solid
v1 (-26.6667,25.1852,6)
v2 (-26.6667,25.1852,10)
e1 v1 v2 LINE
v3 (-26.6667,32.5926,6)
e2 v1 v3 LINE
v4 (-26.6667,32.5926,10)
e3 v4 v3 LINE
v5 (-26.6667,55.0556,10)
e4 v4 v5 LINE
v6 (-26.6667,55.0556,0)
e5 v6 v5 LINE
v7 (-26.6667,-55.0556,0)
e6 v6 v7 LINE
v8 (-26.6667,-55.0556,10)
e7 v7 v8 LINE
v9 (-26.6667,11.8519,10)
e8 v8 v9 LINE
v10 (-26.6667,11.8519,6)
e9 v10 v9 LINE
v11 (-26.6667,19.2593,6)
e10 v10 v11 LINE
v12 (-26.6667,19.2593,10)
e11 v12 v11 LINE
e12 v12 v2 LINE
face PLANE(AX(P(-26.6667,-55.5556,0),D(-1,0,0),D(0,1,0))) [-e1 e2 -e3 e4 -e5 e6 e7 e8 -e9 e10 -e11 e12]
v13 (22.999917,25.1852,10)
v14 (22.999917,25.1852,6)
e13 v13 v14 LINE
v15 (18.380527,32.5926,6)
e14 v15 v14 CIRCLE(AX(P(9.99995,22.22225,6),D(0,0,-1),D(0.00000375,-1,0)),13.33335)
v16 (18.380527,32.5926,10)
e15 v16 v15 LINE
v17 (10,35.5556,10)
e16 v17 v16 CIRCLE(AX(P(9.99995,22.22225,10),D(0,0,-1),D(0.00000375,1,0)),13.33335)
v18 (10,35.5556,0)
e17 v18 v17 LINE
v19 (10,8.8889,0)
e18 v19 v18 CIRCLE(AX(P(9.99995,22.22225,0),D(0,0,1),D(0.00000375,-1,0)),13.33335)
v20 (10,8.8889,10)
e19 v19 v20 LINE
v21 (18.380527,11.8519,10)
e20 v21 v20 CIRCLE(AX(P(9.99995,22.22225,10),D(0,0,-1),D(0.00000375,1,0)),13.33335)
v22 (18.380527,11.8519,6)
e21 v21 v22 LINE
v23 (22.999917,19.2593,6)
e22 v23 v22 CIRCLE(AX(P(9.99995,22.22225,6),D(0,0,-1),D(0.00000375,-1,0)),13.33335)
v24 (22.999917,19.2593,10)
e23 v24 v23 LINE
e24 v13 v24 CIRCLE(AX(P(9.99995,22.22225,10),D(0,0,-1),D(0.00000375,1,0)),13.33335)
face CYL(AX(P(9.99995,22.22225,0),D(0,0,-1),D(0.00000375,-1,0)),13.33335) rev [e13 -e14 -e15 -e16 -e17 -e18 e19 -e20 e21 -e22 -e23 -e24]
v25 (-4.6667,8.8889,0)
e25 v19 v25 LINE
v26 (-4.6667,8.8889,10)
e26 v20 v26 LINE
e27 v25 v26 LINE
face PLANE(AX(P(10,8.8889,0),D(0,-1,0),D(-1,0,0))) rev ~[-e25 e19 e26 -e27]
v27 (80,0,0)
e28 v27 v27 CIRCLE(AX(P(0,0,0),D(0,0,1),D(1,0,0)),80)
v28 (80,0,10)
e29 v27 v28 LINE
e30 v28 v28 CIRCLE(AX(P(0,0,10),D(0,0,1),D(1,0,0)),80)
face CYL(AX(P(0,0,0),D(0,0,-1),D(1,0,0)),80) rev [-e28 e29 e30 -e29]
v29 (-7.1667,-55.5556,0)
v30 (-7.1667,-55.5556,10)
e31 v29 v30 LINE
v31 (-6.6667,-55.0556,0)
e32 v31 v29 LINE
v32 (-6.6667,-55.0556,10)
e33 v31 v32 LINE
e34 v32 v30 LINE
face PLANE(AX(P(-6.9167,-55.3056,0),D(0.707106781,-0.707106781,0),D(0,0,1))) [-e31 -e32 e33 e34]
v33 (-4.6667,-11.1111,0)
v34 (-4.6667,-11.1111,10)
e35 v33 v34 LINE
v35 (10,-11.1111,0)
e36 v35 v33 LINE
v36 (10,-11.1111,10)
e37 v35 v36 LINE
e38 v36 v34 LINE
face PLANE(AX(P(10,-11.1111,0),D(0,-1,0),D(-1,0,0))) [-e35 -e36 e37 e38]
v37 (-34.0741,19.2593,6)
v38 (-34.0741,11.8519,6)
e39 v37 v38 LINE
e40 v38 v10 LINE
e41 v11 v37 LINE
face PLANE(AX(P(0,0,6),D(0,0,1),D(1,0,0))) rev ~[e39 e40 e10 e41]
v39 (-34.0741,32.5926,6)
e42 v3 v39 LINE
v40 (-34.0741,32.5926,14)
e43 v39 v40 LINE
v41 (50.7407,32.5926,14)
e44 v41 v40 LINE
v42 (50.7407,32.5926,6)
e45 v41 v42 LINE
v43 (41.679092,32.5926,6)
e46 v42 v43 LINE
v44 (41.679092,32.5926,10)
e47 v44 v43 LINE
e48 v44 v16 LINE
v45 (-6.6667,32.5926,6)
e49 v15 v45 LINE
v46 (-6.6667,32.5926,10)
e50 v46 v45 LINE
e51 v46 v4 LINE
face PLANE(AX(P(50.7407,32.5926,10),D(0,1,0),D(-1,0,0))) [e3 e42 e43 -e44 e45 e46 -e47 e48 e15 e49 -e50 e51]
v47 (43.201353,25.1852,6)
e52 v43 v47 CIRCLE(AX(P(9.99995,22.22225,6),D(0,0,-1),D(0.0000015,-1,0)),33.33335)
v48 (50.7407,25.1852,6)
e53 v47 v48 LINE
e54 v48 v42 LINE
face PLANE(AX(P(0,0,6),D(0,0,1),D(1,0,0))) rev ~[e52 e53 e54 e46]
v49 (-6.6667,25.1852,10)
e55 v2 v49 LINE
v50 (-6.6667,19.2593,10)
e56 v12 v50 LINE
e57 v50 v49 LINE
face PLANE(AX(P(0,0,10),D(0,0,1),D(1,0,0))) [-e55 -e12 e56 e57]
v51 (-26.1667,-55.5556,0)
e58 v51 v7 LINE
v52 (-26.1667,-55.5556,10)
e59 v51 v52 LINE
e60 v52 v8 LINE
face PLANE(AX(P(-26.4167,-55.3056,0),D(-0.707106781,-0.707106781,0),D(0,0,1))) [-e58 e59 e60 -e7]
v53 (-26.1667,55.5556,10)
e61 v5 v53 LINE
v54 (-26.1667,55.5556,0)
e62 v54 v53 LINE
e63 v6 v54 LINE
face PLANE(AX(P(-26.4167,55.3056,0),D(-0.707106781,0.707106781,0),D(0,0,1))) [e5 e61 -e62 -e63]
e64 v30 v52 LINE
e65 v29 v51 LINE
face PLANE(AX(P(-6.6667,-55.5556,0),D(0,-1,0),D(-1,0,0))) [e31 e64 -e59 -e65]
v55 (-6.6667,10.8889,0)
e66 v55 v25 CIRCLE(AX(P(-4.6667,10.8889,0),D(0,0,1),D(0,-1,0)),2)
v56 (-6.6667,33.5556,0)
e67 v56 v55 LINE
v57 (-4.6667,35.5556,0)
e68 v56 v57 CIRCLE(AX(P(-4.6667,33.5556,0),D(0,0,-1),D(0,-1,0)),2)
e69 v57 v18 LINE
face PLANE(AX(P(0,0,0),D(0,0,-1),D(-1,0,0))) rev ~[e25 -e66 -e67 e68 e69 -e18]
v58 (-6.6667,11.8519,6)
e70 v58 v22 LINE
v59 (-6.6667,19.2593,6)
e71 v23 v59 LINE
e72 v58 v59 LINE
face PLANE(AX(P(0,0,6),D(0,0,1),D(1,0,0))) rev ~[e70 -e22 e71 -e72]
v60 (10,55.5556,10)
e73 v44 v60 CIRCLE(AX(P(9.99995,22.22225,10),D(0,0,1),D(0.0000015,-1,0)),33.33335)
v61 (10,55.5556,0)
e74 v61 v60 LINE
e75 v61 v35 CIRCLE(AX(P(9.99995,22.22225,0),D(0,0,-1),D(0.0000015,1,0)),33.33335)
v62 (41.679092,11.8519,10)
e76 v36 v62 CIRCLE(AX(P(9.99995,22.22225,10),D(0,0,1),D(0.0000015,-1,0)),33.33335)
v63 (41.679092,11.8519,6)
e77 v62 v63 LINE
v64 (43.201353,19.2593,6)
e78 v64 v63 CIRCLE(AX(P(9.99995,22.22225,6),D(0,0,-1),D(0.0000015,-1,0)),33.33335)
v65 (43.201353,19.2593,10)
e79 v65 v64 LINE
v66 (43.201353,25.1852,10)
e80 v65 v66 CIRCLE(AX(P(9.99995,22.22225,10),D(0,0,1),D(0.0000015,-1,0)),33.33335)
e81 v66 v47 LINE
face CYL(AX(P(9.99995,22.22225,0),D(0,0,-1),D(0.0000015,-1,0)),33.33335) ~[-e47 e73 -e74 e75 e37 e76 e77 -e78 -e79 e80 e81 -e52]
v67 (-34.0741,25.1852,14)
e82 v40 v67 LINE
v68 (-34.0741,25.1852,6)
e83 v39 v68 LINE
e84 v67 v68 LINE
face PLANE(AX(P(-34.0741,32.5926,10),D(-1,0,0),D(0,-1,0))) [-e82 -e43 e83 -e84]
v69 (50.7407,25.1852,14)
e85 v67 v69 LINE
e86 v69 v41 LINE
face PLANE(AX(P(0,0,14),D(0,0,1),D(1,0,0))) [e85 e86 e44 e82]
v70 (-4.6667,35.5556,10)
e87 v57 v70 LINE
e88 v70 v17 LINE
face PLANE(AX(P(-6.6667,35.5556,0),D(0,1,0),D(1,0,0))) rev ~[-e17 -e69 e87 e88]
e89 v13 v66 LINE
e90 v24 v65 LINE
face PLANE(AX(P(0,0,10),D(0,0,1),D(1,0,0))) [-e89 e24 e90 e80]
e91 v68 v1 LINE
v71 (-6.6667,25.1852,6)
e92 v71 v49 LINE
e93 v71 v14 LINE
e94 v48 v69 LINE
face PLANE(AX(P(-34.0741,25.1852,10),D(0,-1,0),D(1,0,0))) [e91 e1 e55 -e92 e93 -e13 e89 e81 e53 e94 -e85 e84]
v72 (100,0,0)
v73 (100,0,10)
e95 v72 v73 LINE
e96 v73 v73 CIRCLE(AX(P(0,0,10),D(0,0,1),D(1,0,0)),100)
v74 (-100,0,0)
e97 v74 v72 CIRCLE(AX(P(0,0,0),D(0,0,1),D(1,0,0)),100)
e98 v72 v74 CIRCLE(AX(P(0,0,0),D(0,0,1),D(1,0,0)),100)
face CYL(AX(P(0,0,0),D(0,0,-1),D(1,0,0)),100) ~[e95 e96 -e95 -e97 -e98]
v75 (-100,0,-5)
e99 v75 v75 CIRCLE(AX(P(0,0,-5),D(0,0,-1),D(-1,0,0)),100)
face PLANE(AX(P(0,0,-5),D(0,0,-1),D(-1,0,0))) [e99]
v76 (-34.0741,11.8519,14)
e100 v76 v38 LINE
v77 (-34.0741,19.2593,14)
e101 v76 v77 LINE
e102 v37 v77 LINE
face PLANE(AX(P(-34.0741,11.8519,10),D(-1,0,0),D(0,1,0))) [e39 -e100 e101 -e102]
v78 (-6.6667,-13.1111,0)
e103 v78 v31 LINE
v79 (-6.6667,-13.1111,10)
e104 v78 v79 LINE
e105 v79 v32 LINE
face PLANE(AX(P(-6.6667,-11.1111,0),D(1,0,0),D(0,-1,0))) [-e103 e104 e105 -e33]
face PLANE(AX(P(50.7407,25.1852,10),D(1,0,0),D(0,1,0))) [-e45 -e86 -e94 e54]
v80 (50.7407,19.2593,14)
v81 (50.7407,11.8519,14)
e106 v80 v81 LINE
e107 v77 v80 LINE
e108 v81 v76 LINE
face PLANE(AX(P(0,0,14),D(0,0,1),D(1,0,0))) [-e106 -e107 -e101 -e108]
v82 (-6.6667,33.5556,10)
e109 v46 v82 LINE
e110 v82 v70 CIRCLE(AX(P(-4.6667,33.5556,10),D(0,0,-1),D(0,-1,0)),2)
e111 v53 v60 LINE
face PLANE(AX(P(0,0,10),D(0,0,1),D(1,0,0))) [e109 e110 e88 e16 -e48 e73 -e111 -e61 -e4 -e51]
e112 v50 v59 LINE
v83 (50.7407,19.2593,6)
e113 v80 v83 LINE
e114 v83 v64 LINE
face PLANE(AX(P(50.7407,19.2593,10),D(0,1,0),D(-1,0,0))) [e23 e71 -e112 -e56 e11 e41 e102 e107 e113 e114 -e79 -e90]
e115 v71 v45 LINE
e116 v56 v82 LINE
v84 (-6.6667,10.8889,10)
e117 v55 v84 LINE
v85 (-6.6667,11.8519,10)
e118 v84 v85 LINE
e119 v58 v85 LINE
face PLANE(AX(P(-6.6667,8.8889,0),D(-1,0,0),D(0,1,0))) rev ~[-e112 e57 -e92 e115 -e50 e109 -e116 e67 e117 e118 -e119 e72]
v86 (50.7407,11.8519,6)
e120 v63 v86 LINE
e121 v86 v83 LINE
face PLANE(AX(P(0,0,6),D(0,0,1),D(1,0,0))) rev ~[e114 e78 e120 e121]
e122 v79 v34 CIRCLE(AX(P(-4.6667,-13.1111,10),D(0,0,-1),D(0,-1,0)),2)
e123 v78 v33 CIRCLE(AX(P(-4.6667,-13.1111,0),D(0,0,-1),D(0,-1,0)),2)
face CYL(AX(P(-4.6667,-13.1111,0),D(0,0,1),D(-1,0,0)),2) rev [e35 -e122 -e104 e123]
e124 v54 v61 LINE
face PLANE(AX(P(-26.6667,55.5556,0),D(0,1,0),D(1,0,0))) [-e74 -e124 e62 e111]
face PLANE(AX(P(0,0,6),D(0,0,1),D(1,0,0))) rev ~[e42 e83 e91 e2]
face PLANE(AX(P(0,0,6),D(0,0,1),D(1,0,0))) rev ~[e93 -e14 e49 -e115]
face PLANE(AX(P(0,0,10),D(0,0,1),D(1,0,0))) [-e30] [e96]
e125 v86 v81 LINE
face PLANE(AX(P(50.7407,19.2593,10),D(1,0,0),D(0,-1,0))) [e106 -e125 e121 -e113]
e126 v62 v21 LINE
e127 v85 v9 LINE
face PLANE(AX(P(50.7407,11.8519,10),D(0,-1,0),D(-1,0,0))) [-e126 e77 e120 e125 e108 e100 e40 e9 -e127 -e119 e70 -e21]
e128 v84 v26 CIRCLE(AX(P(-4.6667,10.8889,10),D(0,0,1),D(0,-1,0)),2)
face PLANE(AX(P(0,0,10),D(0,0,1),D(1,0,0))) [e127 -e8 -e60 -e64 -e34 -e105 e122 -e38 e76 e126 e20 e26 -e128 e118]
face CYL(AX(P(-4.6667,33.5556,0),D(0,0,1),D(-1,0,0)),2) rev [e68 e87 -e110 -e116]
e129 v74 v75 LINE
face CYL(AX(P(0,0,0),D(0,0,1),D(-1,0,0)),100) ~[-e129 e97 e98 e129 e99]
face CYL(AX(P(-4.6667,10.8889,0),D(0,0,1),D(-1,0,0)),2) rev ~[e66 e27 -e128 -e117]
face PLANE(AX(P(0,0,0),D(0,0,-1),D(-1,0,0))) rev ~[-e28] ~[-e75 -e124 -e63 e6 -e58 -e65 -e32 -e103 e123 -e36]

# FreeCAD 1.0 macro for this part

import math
import FreeCAD as App
import Part
import Sketcher
Q = App.Units.Quantity


def edges_at(feature, points):
    """Names of the edges that pass closest to the given points."""
    edges = feature.Shape.Edges
    near = lambda p: min(range(len(edges)), key=lambda i: edges[i].distToShape(Part.Vertex(*p))[0])
    return sorted({f"Edge{near(p) + 1}" for p in points})


def add_polygon(sketch, points):
    """Adds a closed chain of lines whose ends are joined by coincident constraints."""
    first, n = sketch.GeometryCount, len(points)
    for a, b in zip(points, points[1:] + points[:1]):
        sketch.addGeometry(Part.LineSegment(App.Vector(*a, 0), App.Vector(*b, 0)), False)
    for i in range(n):
        sketch.addConstraint(Sketcher.Constraint("Coincident", first + i, 2, first + (i + 1) % n, 1))

doc = App.newDocument("Part")
body = doc.addObject("PartDesign::Body", "Body")
body.AllowCompound = True

# Sketch on XY plane
sketch1 = body.newObject("Sketcher::SketchObject", "Sketch")
sketch1.AttachmentSupport = (doc.getObject("XY_Plane"), [""])
sketch1.MapMode = "FlatFace"
sketch1.addGeometry([
    Part.Circle(App.Vector(0, 0, 0), App.Vector(0, 0, 1), 100),  # 0
    Part.Circle(App.Vector(0, 0, 0), App.Vector(0, 0, 1), 80),  # 1
    Part.LineSegment(App.Vector(-26.6667, -55.5556, 0), App.Vector(-6.6667, -55.5556, 0)),  # 2
    Part.LineSegment(App.Vector(-6.6667, -55.5556, 0), App.Vector(-6.6667, -11.1111, 0)),  # 3
    Part.LineSegment(App.Vector(-6.6667, -11.1111, 0), App.Vector(10, -11.1111, 0)),  # 4
    Part.ArcOfCircle(Part.Circle(App.Vector(10, 22.2222, 0), App.Vector(0, 0, 1), 33.3333), math.radians(-90), math.radians(90)),  # 5
    Part.LineSegment(App.Vector(10, 55.5556, 0), App.Vector(-26.6667, 55.5556, 0)),  # 6
    Part.LineSegment(App.Vector(-26.6667, 55.5556, 0), App.Vector(-26.6667, -55.5556, 0)),  # 7
    Part.LineSegment(App.Vector(-6.6667, 8.8889, 0), App.Vector(-6.6667, 35.5556, 0)),  # 8
    Part.LineSegment(App.Vector(-6.6667, 35.5556, 0), App.Vector(10, 35.5556, 0)),  # 9
    Part.ArcOfCircle(Part.Circle(App.Vector(10, 22.2222, 0), App.Vector(0, 0, 1), 13.3333), math.radians(-90), math.radians(90)),  # 10
    Part.LineSegment(App.Vector(10, 8.8889, 0), App.Vector(-6.6667, 8.8889, 0)),  # 11
], False)
sketch1.addConstraint([
    Sketcher.Constraint("Coincident", 2, 2, 3, 1),
    Sketcher.Constraint("Coincident", 3, 2, 4, 1),
    Sketcher.Constraint("Tangent", 4, 2, 5, 1),
    Sketcher.Constraint("Tangent", 5, 2, 6, 1),
    Sketcher.Constraint("Coincident", 6, 2, 7, 1),
    Sketcher.Constraint("Coincident", 7, 2, 2, 1),
    Sketcher.Constraint("Coincident", 8, 2, 9, 1),
    Sketcher.Constraint("Tangent", 9, 2, 10, 2),
    Sketcher.Constraint("Tangent", 10, 1, 11, 1),
    Sketcher.Constraint("Coincident", 11, 2, 8, 1),
    Sketcher.Constraint("Horizontal", 2),
    Sketcher.Constraint("Vertical", 3),
    Sketcher.Constraint("Horizontal", 4),
    Sketcher.Constraint("Horizontal", 6),
    Sketcher.Constraint("Vertical", 7),
    Sketcher.Constraint("Vertical", 8),
    Sketcher.Constraint("Horizontal", 9),
    Sketcher.Constraint("Horizontal", 11),
    Sketcher.Constraint("Coincident", 0, 3, -1, 1),
    Sketcher.Constraint("Coincident", 1, 3, -1, 1),
    Sketcher.Constraint("Coincident", 10, 3, 5, 3),
    Sketcher.Constraint("Vertical", 3, 2, 8, 2),
    Sketcher.Constraint("Diameter", 0, Q("200 mm")),
    Sketcher.Constraint("DistanceX", 2, 1, 2, 2, Q("20 mm")),
    Sketcher.Constraint("Diameter", 1, Q("160 mm")),
    Sketcher.Constraint("DistanceX", -1, 1, 5, 3, Q("10 mm")),
    Sketcher.Constraint("DistanceY", 8, 2, 5, 2, Q("20 mm")),
    Sketcher.Constraint("DistanceY", 3, 1, 3, 2, Q("44.4445 mm")),
    Sketcher.Constraint("DistanceY", 7, 2, 7, 1, Q("111.1112 mm")),
    Sketcher.Constraint("DistanceX", 4, 1, 4, 2, Q("16.6667 mm")),
    Sketcher.Constraint("DistanceY", 3, 2, -1, 1, Q("11.111 mm")),
])
pad1 = body.newObject("PartDesign::Pad", "Pad")
pad1.Profile = sketch1
pad1.Length = 10

# Sketch on XY plane
sketch2 = body.newObject("Sketcher::SketchObject", "Sketch001")
sketch2.AttachmentSupport = (doc.getObject("XY_Plane"), [""])
sketch2.MapMode = "FlatFace"
sketch2.AttachmentOffset = App.Placement(App.Vector(0, 0, 10), App.Rotation())
add_polygon(sketch2, [(-34.0741, 32.5926), (-34.0741, 25.1852), (50.7407, 25.1852), (50.7407, 32.5926)])  # lines 0-3
add_polygon(sketch2, [(50.7407, 11.8519), (50.7407, 19.2593), (-34.0741, 19.2593), (-34.0741, 11.8519)])  # lines 4-7
sketch2.addConstraint([
    Sketcher.Constraint("Vertical", 0),
    Sketcher.Constraint("Horizontal", 1),
    Sketcher.Constraint("Vertical", 2),
    Sketcher.Constraint("Horizontal", 3),
    Sketcher.Constraint("Vertical", 4),
    Sketcher.Constraint("Horizontal", 5),
    Sketcher.Constraint("Vertical", 6),
    Sketcher.Constraint("Horizontal", 7),
    Sketcher.Constraint("Vertical", 2, 2, 4, 2),
    Sketcher.Constraint("Vertical", 3, 2, 5, 2),
    Sketcher.Constraint("Equal", 2, 4),
    Sketcher.Constraint("DistanceX", 1, 1, 1, 2, Q("84.8148 mm")),
    Sketcher.Constraint("DistanceY", 0, 2, 0, 1, Q("7.4074 mm")),
    Sketcher.Constraint("DistanceX", 0, 2, -1, 1, Q("34.074 mm")),
    Sketcher.Constraint("DistanceY", -1, 1, 6, 2, Q("11.852 mm")),
    Sketcher.Constraint("DistanceY", 4, 2, 1, 2, Q("5.926 mm")),
])
pad2 = body.newObject("PartDesign::Pad", "Pad001")
pad2.Profile = sketch2
pad2.Length = 4
pad2.Reversed = True

# Sketch on XY plane
sketch3 = body.newObject("Sketcher::SketchObject", "Sketch002")
sketch3.AttachmentSupport = (doc.getObject("XY_Plane"), [""])
sketch3.MapMode = "FlatFace"
sketch3.addGeometry(Part.Circle(App.Vector(0, 0, 0), App.Vector(0, 0, 1), 100), False)
sketch3.addConstraint([
    Sketcher.Constraint("Coincident", 0, 3, -1, 1),
    Sketcher.Constraint("Diameter", 0, Q("200 mm")),
])
pad3 = body.newObject("PartDesign::Pad", "Pad002")
pad3.Profile = sketch3
pad3.Length = 5
pad3.Reversed = True
doc.recompute()

fillet = body.newObject("PartDesign::Fillet", "Fillet")
fillet.Base = (pad3, edges_at(pad3, [(-6.667, 8.889, 5), (-6.667, 35.556, 5)]))
fillet.Radius = 2
doc.recompute()

fillet2 = body.newObject("PartDesign::Fillet", "Fillet001")
fillet2.Base = (fillet, edges_at(fillet, [(-6.667, -11.111, 5)]))
fillet2.Radius = 2
doc.recompute()

chamfer = body.newObject("PartDesign::Chamfer", "Chamfer")
chamfer.Base = (fillet2, edges_at(fillet2, [(-26.667, 55.556, 5), (-26.667, -55.556, 5), (-6.667, -55.556, 5)]))
chamfer.Size = 0.5

# Sketch on XY plane
sketch4 = body.newObject("Sketcher::SketchObject", "Sketch003")
sketch4.AttachmentSupport = (doc.getObject("XY_Plane"), [""])
sketch4.MapMode = "FlatFace"
sketch4.AttachmentOffset = App.Placement(App.Vector(0, 0, 10), App.Rotation())
add_polygon(sketch4, [(50.7407, 25.1852), (50.7407, 32.5926), (-34.0741, 32.5926), (-34.0741, 25.1852)])  # lines 0-3
add_polygon(sketch4, [(50.7407, 19.2593), (-34.0741, 19.2593), (-34.0741, 11.8519), (50.7407, 11.8519)])  # lines 4-7
sketch4.addConstraint([
    Sketcher.Constraint("Vertical", 0),
    Sketcher.Constraint("Horizontal", 1),
    Sketcher.Constraint("Vertical", 2),
    Sketcher.Constraint("Horizontal", 3),
    Sketcher.Constraint("Horizontal", 4),
    Sketcher.Constraint("Vertical", 5),
    Sketcher.Constraint("Horizontal", 6),
    Sketcher.Constraint("Vertical", 7),
    Sketcher.Constraint("Vertical", 2, 2, 4, 2),
    Sketcher.Constraint("Vertical", 3, 2, 6, 2),
    Sketcher.Constraint("Equal", 2, 5),
    Sketcher.Constraint("DistanceX", 1, 2, 1, 1, Q("84.8148 mm")),
    Sketcher.Constraint("DistanceY", 0, 1, 0, 2, Q("7.4074 mm")),
    Sketcher.Constraint("DistanceX", 1, 2, -1, 1, Q("34.074 mm")),
    Sketcher.Constraint("DistanceY", -1, 1, 5, 2, Q("11.852 mm")),
    Sketcher.Constraint("DistanceY", 4, 2, 2, 2, Q("5.926 mm")),
])
pad4 = body.newObject("PartDesign::Pad", "Pad003")
pad4.Profile = sketch4
pad4.Length = 4

doc.recompute()
